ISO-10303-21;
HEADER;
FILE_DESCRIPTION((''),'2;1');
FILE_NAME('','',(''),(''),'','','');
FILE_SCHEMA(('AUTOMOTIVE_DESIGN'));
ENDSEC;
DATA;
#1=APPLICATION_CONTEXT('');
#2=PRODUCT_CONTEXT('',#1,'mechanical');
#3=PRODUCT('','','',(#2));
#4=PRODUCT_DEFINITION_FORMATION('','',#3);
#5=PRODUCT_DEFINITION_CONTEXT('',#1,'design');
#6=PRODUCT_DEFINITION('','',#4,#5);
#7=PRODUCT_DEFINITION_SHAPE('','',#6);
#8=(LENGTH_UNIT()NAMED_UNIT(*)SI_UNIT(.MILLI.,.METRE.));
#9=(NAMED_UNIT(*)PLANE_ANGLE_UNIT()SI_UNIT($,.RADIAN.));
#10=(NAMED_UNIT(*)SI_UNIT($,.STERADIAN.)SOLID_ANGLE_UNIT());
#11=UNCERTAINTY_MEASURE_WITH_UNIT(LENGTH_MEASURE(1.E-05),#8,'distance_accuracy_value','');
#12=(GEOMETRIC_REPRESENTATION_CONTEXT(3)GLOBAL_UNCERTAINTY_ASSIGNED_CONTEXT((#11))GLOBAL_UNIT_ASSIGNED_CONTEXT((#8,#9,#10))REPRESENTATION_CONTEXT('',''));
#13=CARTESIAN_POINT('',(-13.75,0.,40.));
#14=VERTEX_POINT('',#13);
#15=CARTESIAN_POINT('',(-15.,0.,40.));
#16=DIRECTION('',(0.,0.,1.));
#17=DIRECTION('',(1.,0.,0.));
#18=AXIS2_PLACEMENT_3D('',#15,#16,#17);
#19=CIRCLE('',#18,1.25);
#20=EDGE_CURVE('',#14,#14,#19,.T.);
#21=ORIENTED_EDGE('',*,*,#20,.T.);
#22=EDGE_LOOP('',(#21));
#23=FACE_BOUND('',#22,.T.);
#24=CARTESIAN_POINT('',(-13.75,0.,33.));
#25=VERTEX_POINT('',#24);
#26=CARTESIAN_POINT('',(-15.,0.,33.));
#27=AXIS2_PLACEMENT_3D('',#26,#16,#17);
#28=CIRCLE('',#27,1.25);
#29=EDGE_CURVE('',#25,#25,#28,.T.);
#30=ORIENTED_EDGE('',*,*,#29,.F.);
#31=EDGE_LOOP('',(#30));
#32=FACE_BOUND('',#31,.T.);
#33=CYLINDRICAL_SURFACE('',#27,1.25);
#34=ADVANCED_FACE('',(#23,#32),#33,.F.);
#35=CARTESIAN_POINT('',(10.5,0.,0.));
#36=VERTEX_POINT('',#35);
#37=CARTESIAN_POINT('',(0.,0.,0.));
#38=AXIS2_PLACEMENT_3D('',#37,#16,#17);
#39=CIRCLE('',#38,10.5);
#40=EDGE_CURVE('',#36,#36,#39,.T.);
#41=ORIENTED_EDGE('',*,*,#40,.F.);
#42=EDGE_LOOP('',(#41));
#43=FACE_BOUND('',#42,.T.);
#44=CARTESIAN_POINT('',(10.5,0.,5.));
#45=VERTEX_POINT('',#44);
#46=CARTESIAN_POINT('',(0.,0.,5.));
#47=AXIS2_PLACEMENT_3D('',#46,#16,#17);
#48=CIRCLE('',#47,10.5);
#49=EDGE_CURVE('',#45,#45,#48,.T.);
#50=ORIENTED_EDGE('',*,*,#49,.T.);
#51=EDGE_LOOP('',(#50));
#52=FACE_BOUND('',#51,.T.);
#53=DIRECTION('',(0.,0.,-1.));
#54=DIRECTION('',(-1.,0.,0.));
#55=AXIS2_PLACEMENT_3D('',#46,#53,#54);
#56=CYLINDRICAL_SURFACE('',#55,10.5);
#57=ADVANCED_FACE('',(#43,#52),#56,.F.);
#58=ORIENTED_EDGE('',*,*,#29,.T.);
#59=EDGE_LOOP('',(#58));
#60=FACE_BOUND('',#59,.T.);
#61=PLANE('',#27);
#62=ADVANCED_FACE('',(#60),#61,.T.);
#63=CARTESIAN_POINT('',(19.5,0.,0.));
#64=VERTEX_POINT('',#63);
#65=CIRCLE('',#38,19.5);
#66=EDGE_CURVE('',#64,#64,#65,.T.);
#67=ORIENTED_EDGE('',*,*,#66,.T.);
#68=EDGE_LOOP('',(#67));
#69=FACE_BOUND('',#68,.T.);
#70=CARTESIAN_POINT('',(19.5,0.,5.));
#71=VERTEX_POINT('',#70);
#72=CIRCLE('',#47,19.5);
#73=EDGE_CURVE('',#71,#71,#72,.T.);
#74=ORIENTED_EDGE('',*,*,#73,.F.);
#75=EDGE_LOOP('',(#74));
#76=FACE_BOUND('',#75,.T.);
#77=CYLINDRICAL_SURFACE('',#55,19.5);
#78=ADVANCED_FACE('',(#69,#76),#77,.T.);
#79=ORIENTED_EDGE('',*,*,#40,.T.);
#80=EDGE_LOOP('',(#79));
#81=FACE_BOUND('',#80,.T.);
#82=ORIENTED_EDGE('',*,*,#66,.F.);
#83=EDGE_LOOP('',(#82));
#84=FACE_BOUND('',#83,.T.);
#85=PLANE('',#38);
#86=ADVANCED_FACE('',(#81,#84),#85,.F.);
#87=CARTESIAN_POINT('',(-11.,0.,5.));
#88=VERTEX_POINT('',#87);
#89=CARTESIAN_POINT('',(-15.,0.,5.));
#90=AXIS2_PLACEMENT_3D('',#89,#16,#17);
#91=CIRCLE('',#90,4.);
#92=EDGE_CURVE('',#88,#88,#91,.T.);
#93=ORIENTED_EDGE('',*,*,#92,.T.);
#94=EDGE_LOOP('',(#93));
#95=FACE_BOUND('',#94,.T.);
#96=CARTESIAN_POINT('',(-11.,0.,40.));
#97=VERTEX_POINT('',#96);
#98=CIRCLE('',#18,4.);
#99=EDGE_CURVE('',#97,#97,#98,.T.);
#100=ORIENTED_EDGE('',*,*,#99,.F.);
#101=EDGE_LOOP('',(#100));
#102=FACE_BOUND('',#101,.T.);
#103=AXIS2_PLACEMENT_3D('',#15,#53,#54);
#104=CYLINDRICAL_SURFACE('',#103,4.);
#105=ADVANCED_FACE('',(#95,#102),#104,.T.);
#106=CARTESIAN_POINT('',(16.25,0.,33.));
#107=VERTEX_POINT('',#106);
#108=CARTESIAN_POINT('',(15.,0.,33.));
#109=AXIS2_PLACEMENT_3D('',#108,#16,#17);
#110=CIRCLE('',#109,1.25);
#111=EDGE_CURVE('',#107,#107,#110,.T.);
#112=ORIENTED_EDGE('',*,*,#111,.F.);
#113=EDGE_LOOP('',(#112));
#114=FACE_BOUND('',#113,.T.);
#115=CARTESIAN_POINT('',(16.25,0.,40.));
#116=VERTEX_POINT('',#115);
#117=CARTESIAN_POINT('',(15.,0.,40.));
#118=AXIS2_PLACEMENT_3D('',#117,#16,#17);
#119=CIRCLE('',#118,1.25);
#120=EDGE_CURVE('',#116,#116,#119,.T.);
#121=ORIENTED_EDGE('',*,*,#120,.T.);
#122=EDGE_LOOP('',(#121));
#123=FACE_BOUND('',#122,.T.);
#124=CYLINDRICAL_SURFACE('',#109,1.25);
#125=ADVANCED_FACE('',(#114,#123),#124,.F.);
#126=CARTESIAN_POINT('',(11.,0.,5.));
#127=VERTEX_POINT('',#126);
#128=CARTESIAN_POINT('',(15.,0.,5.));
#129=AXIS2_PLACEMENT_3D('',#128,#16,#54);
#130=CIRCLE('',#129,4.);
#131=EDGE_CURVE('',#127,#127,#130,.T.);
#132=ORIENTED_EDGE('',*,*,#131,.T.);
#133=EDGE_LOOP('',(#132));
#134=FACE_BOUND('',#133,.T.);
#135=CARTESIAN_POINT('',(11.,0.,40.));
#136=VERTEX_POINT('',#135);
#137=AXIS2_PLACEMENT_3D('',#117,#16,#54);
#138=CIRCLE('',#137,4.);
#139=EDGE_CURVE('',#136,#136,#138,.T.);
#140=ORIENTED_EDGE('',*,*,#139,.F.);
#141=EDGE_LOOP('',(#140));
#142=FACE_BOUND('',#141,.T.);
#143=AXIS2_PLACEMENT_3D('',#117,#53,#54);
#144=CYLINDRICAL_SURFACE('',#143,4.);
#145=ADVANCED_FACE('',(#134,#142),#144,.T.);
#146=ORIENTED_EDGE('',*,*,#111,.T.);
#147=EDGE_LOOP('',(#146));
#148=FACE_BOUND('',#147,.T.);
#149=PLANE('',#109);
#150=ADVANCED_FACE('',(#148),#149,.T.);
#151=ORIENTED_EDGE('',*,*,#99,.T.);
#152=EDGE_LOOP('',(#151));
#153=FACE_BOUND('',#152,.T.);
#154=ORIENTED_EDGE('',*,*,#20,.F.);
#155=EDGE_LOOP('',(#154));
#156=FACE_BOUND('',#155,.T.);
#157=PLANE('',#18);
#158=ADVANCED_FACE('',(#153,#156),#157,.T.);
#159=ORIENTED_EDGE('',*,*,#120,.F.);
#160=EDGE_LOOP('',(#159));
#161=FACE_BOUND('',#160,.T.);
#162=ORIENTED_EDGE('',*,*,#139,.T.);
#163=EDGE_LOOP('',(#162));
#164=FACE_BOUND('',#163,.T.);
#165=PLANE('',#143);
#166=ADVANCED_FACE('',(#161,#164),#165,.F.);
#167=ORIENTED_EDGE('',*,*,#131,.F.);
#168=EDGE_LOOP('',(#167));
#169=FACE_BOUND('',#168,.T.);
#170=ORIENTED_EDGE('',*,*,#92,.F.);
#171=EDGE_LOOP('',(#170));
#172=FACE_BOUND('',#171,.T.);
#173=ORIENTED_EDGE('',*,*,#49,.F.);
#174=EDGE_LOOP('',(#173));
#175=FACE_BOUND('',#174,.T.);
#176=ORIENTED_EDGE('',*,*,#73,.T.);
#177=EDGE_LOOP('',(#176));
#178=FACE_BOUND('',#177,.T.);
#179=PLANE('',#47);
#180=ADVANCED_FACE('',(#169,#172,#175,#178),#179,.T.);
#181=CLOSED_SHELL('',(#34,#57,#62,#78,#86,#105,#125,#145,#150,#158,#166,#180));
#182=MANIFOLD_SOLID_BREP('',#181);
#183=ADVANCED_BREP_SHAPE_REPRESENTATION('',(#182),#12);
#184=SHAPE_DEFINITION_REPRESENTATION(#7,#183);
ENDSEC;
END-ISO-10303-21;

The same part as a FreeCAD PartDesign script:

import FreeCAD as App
import Part
import Sketcher
from FreeCAD import Vector

doc = App.newDocument("Part")
body = doc.addObject("PartDesign::Body", "Body")

# Sketch on XY plane
sketch1 = body.newObject("Sketcher::SketchObject", "Sketch")
sketch1.AttachmentSupport = (doc.getObject("XY_Plane"), [""])
sketch1.MapMode = "FlatFace"
sketch1.addGeometry(Part.Circle(Vector(0, 0, 0), Vector(0, 0, 1), 20), False)
sketch1.addGeometry(Part.Circle(Vector(0, 0, 0), Vector(0, 0, 1), 10), False)
sketch1.addConstraint(Sketcher.Constraint("Coincident", 0, 3, -1, 1))
sketch1.addConstraint(Sketcher.Constraint("Coincident", 1, 3, -1, 1))
sketch1.addConstraint(Sketcher.Constraint("Diameter", 0, 39.0))
sketch1.addConstraint(Sketcher.Constraint("Diameter", 1, 21.0))
pad1 = body.newObject("PartDesign::Pad", "Pad")
pad1.Profile = sketch1
pad1.Length = 5

# Sketch on XY plane
sketch2 = body.newObject("Sketcher::SketchObject", "Sketch001")
sketch2.AttachmentSupport = (doc.getObject("XY_Plane"), [""])
sketch2.MapMode = "FlatFace"
sketch2.AttachmentOffset = App.Placement(Vector(0, 0, 5), App.Rotation())
sketch2.addGeometry(Part.Circle(Vector(-15, 0, 0), Vector(0, 0, 1), 4), False)
sketch2.addGeometry(Part.Circle(Vector(15, 0, 0), Vector(0, 0, 1), 4), False)
sketch2.addConstraint(Sketcher.Constraint("Equal", 0, 1))
sketch2.addConstraint(Sketcher.Constraint("Symmetric", 0, 3, 1, 3, -1, 1))
sketch2.addConstraint(Sketcher.Constraint("PointOnObject", 0, 3, -1))
sketch2.addConstraint(Sketcher.Constraint("Diameter", 0, 8.0))
sketch2.addConstraint(Sketcher.Constraint("DistanceX", 0, 3, -1, 1, 15.0))
pad2 = body.newObject("PartDesign::Pad", "Pad001")
pad2.Profile = sketch2
pad2.Length = 35

# Sketch on XY plane
sketch3 = body.newObject("Sketcher::SketchObject", "Sketch002")
sketch3.AttachmentSupport = (doc.getObject("XY_Plane"), [""])
sketch3.MapMode = "FlatFace"
sketch3.AttachmentOffset = App.Placement(Vector(0, 0, 40), App.Rotation())
sketch3.addGeometry(Part.Circle(Vector(15, 0, 0), Vector(0, 0, 1), 1.2), False)
sketch3.addGeometry(Part.Circle(Vector(-15, 0, 0), Vector(0, 0, 1), 1.2), False)
sketch3.addConstraint(Sketcher.Constraint("Equal", 0, 1))
sketch3.addConstraint(Sketcher.Constraint("Symmetric", 0, 3, 1, 3, -1, 1))
sketch3.addConstraint(Sketcher.Constraint("PointOnObject", 0, 3, -1))
sketch3.addConstraint(Sketcher.Constraint("Diameter", 0, 2.5))
sketch3.addConstraint(Sketcher.Constraint("DistanceX", -1, 1, 0, 3, 15.0))
pocket1 = body.newObject("PartDesign::Pocket", "Pocket")
pocket1.Profile = sketch3
pocket1.Length = 7

doc.recompute()
